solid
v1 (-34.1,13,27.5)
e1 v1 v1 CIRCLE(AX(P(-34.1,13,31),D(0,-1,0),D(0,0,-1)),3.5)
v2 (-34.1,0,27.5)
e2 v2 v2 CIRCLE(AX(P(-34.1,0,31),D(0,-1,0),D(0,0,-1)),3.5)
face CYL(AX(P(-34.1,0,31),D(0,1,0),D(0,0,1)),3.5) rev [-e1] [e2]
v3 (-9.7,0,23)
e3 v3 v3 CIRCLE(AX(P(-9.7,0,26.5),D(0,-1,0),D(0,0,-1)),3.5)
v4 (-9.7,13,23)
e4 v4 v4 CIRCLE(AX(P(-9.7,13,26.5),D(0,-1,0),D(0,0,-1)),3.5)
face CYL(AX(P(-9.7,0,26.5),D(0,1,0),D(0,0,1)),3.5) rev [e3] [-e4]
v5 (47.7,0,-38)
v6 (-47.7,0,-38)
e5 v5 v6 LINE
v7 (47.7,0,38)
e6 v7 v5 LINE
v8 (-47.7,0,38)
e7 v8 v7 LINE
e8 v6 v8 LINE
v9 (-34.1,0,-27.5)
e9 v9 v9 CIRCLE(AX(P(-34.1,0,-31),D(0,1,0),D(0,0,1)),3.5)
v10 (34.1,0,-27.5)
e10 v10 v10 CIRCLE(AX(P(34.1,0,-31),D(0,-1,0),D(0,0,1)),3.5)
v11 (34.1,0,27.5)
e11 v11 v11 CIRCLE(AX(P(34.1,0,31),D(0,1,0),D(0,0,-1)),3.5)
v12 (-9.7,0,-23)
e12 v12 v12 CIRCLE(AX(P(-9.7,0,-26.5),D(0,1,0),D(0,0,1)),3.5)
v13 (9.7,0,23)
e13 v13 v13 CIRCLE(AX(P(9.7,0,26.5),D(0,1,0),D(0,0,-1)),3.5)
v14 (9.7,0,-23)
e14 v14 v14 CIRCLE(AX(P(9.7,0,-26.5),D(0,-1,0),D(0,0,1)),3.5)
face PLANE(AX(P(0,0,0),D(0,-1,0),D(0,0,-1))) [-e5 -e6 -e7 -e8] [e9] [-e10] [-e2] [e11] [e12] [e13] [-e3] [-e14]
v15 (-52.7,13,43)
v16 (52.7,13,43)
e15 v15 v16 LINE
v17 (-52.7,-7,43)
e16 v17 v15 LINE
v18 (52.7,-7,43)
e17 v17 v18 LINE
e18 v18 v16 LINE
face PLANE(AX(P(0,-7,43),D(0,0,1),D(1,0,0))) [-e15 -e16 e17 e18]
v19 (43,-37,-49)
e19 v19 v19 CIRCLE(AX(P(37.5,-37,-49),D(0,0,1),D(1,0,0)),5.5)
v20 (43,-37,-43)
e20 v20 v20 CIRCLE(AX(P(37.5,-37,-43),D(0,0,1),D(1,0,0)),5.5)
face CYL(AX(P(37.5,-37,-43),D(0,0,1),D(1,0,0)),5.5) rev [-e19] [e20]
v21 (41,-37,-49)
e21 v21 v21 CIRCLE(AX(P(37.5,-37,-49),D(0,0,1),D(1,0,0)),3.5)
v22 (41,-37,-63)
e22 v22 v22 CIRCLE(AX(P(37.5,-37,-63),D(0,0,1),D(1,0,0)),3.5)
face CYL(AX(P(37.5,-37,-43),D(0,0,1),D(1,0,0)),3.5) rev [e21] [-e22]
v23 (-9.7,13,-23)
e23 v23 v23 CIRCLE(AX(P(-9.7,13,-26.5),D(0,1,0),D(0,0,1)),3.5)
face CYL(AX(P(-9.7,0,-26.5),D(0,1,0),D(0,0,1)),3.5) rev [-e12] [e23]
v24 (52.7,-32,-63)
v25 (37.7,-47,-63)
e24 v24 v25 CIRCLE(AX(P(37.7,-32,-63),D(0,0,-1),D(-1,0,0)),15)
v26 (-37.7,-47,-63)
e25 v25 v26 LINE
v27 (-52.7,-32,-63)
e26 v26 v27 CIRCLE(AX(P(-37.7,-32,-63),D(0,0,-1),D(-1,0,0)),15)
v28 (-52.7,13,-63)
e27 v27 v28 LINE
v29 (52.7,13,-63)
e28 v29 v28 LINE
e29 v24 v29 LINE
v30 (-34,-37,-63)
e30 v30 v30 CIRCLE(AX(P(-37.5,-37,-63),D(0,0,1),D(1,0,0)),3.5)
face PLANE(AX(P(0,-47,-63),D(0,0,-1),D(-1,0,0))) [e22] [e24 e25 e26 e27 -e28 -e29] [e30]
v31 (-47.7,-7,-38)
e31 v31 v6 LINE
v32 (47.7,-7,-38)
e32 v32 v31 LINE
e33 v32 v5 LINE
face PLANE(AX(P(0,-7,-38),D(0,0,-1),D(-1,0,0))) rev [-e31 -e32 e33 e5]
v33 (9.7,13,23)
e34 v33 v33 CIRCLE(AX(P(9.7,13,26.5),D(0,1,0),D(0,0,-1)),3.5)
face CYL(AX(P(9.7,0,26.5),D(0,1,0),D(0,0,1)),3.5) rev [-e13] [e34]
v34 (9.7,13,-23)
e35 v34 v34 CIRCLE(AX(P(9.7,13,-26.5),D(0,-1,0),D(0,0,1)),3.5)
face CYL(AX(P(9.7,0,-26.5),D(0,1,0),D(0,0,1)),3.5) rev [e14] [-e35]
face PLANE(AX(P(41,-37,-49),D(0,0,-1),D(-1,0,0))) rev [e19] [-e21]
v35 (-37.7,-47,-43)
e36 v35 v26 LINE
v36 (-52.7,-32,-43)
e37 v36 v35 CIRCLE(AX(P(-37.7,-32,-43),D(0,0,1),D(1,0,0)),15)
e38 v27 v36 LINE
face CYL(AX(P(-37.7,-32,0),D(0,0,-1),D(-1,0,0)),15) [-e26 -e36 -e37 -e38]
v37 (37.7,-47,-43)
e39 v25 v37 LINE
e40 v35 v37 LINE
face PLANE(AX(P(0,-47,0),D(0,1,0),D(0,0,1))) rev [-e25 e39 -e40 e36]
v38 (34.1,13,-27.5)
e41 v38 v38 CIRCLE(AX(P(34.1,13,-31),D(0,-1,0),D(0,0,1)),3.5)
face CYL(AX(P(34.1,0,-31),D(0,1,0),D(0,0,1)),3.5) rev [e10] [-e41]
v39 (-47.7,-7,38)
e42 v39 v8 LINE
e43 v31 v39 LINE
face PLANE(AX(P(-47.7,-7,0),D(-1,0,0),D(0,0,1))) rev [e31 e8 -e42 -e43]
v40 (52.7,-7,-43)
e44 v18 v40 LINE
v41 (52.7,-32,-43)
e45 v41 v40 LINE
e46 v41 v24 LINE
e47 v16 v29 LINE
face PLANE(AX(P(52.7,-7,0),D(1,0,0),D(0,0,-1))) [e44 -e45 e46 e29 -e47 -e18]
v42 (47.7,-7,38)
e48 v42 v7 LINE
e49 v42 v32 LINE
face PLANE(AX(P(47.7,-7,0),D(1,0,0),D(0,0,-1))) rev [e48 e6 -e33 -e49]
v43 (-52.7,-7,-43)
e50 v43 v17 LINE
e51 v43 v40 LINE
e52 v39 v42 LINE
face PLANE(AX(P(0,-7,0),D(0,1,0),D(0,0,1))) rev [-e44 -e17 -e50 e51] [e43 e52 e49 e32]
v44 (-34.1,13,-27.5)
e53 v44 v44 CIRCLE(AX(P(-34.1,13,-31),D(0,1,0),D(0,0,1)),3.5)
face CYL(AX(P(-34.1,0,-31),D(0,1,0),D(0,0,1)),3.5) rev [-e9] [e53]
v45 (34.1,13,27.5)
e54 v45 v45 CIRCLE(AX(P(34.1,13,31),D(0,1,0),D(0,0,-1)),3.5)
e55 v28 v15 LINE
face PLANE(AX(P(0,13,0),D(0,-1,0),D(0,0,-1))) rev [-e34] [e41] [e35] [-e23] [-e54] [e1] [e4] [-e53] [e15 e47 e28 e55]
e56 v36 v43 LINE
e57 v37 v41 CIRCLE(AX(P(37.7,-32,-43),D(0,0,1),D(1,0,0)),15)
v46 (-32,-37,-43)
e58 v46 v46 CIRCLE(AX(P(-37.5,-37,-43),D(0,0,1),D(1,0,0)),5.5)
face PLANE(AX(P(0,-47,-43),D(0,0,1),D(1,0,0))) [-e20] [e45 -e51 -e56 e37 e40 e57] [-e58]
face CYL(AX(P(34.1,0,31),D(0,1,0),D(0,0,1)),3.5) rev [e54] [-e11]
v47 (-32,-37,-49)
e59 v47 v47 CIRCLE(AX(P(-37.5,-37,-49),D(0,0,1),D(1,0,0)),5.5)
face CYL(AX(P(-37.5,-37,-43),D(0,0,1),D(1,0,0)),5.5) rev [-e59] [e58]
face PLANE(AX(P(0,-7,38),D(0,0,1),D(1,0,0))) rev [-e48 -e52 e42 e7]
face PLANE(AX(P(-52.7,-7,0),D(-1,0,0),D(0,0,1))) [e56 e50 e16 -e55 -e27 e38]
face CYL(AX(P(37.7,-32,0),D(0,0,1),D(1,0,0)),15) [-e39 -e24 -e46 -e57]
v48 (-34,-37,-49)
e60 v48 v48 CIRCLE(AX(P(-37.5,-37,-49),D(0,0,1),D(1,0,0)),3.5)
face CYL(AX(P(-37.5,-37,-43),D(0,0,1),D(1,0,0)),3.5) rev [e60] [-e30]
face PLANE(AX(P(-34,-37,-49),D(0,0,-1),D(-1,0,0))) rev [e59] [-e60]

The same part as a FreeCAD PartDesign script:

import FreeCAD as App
import Part
import Sketcher

V = App.Vector
Q = App.Units.Quantity


def edges_at(feature, points):
    """Names of the edges that pass closest to the given points."""
    edges = feature.Shape.Edges
    near = lambda p: min(range(len(edges)), key=lambda i: edges[i].distToShape(Part.Vertex(*p))[0])
    return sorted({f"Edge{near(p) + 1}" for p in points})

doc = App.newDocument("Part")
body = doc.addObject("PartDesign::Body", "Body")

sketch1 = body.newObject("Sketcher::SketchObject", "Sketch")
sketch1.AttachmentSupport = (doc.getObject("XZ_Plane"), [""])
sketch1.MapMode = "FlatFace"
sketch1.addGeometry(Part.LineSegment(V(-48, -38, 0), V(-48, 38, 0)), False)
sketch1.addGeometry(Part.LineSegment(V(-48, 38, 0), V(48, 38, 0)), False)
sketch1.addGeometry(Part.LineSegment(V(48, 38, 0), V(48, -38, 0)), False)
sketch1.addGeometry(Part.LineSegment(V(48, -38, 0), V(-48, -38, 0)), False)
sketch1.addConstraint(Sketcher.Constraint("Coincident", 0, 2, 1, 1))
sketch1.addConstraint(Sketcher.Constraint("Coincident", 1, 2, 2, 1))
sketch1.addConstraint(Sketcher.Constraint("Coincident", 2, 2, 3, 1))
sketch1.addConstraint(Sketcher.Constraint("Coincident", 3, 2, 0, 1))
sketch1.addConstraint(Sketcher.Constraint("Vertical", 0))
sketch1.addConstraint(Sketcher.Constraint("Horizontal", 1))
sketch1.addConstraint(Sketcher.Constraint("Vertical", 2))
sketch1.addConstraint(Sketcher.Constraint("Horizontal", 3))
sketch1.addConstraint(Sketcher.Constraint("Symmetric", 0, 2, 2, 2, -1, 1))
sketch1.addConstraint(Sketcher.Constraint("DistanceY", 0, 1, 0, 2, Q("76 mm")))
sketch1.addConstraint(Sketcher.Constraint("DistanceX", 1, 1, 1, 2, Q("95.4 mm")))
pad1 = body.newObject("PartDesign::Pad", "Pad")
pad1.Profile = sketch1
pad1.Length = 13
pad1.Reversed = True

sketch2 = body.newObject("Sketcher::SketchObject", "Sketch001")
sketch2.AttachmentSupport = (doc.getObject("XZ_Plane"), [""])
sketch2.MapMode = "FlatFace"
sketch2.AttachmentOffset = App.Placement(V(0, 0, -13), App.Rotation())
sketch2.addGeometry(Part.Circle(V(-34.1, -31, 0), V(0, 0, 1), 3.5), False)
sketch2.addGeometry(Part.Circle(V(-9.7, -26.5, 0), V(0, 0, 1), 3.5), False)
sketch2.addConstraint(Sketcher.Constraint("Equal", 0, 1))
sketch2.addConstraint(Sketcher.Constraint("Diameter", 0, Q("7 mm")))
sketch2.addConstraint(Sketcher.Constraint("DistanceY", 0, 3, -1, 1, Q("31 mm")))
sketch2.addConstraint(Sketcher.Constraint("DistanceX", 0, 3, -1, 1, Q("34.1 mm")))
sketch2.addConstraint(Sketcher.Constraint("DistanceX", 1, 3, -1, 1, Q("9.7 mm")))
sketch2.addConstraint(Sketcher.Constraint("DistanceY", 1, 3, -1, 1, Q("26.5 mm")))
pocket1 = body.newObject("PartDesign::Pocket", "Pocket")
pocket1.Profile = sketch2
pocket1.Type = "ThroughAll"
pocket1.Reversed = True
doc.recompute()

mirrored = body.newObject("PartDesign::Mirrored", "Mirrored")
mirrored.Originals = [pocket1]
mirrored.MirrorPlane = (doc.getObject("YZ_Plane"), [""])
body.Tip = mirrored
doc.recompute()

mirrored2 = body.newObject("PartDesign::Mirrored", "Mirrored001")
mirrored2.Originals = [pocket1]
mirrored2.MirrorPlane = (doc.getObject("XY_Plane"), [""])
body.Tip = mirrored2

sketch3 = body.newObject("Sketcher::SketchObject", "Sketch002")
sketch3.AttachmentSupport = (doc.getObject("XZ_Plane"), [""])
sketch3.MapMode = "FlatFace"
sketch3.AttachmentOffset = App.Placement(V(0, 0, -13), App.Rotation())
sketch3.addGeometry(Part.Circle(V(34.1, 31, 0), V(0, 0, 1), 3.5), False)
sketch3.addGeometry(Part.Circle(V(9.7, 26.5, 0), V(0, 0, 1), 3.5), False)
sketch3.addConstraint(Sketcher.Constraint("Equal", 0, 1))
sketch3.addConstraint(Sketcher.Constraint("Diameter", 0, Q("7 mm")))
sketch3.addConstraint(Sketcher.Constraint("DistanceY", -1, 1, 0, 3, Q("31 mm")))
sketch3.addConstraint(Sketcher.Constraint("DistanceX", -1, 1, 0, 3, Q("34.1 mm")))
sketch3.addConstraint(Sketcher.Constraint("DistanceX", -1, 1, 1, 3, Q("9.7 mm")))
sketch3.addConstraint(Sketcher.Constraint("DistanceY", -1, 1, 1, 3, Q("26.5 mm")))
pocket2 = body.newObject("PartDesign::Pocket", "Pocket001")
pocket2.Profile = sketch3
pocket2.Type = "ThroughAll"
pocket2.Reversed = True

sketch4 = body.newObject("Sketcher::SketchObject", "Sketch003")
sketch4.AttachmentSupport = (doc.getObject("XZ_Plane"), [""])
sketch4.MapMode = "FlatFace"
sketch4.AttachmentOffset = App.Placement(V(0, 0, -13), App.Rotation())
sketch4.addGeometry(Part.LineSegment(V(-53, -43, 0), V(-53, 43, 0)), False)
sketch4.addGeometry(Part.LineSegment(V(-53, 43, 0), V(53, 43, 0)), False)
sketch4.addGeometry(Part.LineSegment(V(53, 43, 0), V(53, -43, 0)), False)
sketch4.addGeometry(Part.LineSegment(V(53, -43, 0), V(-53, -43, 0)), False)
sketch4.addGeometry(Part.LineSegment(V(48, 38, 0), V(-48, 38, 0)), False)
sketch4.addGeometry(Part.LineSegment(V(-48, 38, 0), V(-48, -38, 0)), False)
sketch4.addGeometry(Part.LineSegment(V(-48, -38, 0), V(48, -38, 0)), False)
sketch4.addGeometry(Part.LineSegment(V(48, -38, 0), V(48, 38, 0)), False)
sketch4.addConstraint(Sketcher.Constraint("Coincident", 0, 2, 1, 1))
sketch4.addConstraint(Sketcher.Constraint("Coincident", 1, 2, 2, 1))
sketch4.addConstraint(Sketcher.Constraint("Coincident", 2, 2, 3, 1))
sketch4.addConstraint(Sketcher.Constraint("Coincident", 3, 2, 0, 1))
sketch4.addConstraint(Sketcher.Constraint("Coincident", 4, 2, 5, 1))
sketch4.addConstraint(Sketcher.Constraint("Coincident", 5, 2, 6, 1))
sketch4.addConstraint(Sketcher.Constraint("Coincident", 6, 2, 7, 1))
sketch4.addConstraint(Sketcher.Constraint("Coincident", 7, 2, 4, 1))
sketch4.addConstraint(Sketcher.Constraint("Vertical", 0))
sketch4.addConstraint(Sketcher.Constraint("Horizontal", 1))
sketch4.addConstraint(Sketcher.Constraint("Vertical", 2))
sketch4.addConstraint(Sketcher.Constraint("Horizontal", 3))
sketch4.addConstraint(Sketcher.Constraint("Horizontal", 4))
sketch4.addConstraint(Sketcher.Constraint("Vertical", 5))
sketch4.addConstraint(Sketcher.Constraint("Horizontal", 6))
sketch4.addConstraint(Sketcher.Constraint("Vertical", 7))
sketch4.addConstraint(Sketcher.Constraint("Symmetric", 0, 2, 2, 2, -1, 1))
sketch4.addConstraint(Sketcher.Constraint("Symmetric", 4, 2, 6, 2, -1, 1))
sketch4.addConstraint(Sketcher.Constraint("DistanceY", 0, 1, 0, 2, Q("86 mm")))
sketch4.addConstraint(Sketcher.Constraint("DistanceY", 5, 2, 5, 1, Q("76 mm")))
sketch4.addConstraint(Sketcher.Constraint("DistanceX", 1, 1, 1, 2, Q("105.4 mm")))
sketch4.addConstraint(Sketcher.Constraint("DistanceX", 4, 2, 4, 1, Q("95.4 mm")))
pad2 = body.newObject("PartDesign::Pad", "Pad001")
pad2.Profile = sketch4
pad2.Length = 20

sketch5 = body.newObject("Sketcher::SketchObject", "Sketch004")
sketch5.AttachmentSupport = (doc.getObject("XZ_Plane"), [""])
sketch5.MapMode = "FlatFace"
sketch5.AttachmentOffset = App.Placement(V(0, 0, -13), App.Rotation())
sketch5.addGeometry(Part.LineSegment(V(-53, -63, 0), V(-53, -43, 0)), False)
sketch5.addGeometry(Part.LineSegment(V(-53, -43, 0), V(53, -43, 0)), False)
sketch5.addGeometry(Part.LineSegment(V(53, -43, 0), V(53, -63, 0)), False)
sketch5.addGeometry(Part.LineSegment(V(53, -63, 0), V(-53, -63, 0)), False)
sketch5.addConstraint(Sketcher.Constraint("Coincident", 0, 2, 1, 1))
sketch5.addConstraint(Sketcher.Constraint("Coincident", 1, 2, 2, 1))
sketch5.addConstraint(Sketcher.Constraint("Coincident", 2, 2, 3, 1))
sketch5.addConstraint(Sketcher.Constraint("Coincident", 3, 2, 0, 1))
sketch5.addConstraint(Sketcher.Constraint("Vertical", 0))
sketch5.addConstraint(Sketcher.Constraint("Horizontal", 1))
sketch5.addConstraint(Sketcher.Constraint("Vertical", 2))
sketch5.addConstraint(Sketcher.Constraint("Horizontal", 3))
sketch5.addConstraint(Sketcher.Constraint("DistanceY", 0, 1, 0, 2, Q("20 mm")))
sketch5.addConstraint(Sketcher.Constraint("DistanceX", 1, 1, 1, 2, Q("105.4 mm")))
sketch5.addConstraint(Sketcher.Constraint("DistanceY", 0, 2, -1, 1, Q("43 mm")))
sketch5.addConstraint(Sketcher.Constraint("DistanceX", 0, 2, -1, 1, Q("52.7 mm")))
pad3 = body.newObject("PartDesign::Pad", "Pad002")
pad3.Profile = sketch5
pad3.Length = 60

sketch6 = body.newObject("Sketcher::SketchObject", "Sketch005")
sketch6.AttachmentSupport = (doc.getObject("XY_Plane"), [""])
sketch6.MapMode = "FlatFace"
sketch6.AttachmentOffset = App.Placement(V(0, 0, -43), App.Rotation())
sketch6.addGeometry(Part.Circle(V(37.5, -37, 0), V(0, 0, 1), 3.5), False)
sketch6.addGeometry(Part.Circle(V(-37.5, -37, 0), V(0, 0, 1), 3.5), False)
sketch6.addConstraint(Sketcher.Constraint("Equal", 0, 1))
sketch6.addConstraint(Sketcher.Constraint("Symmetric", 0, 3, 1, 3, -2))
sketch6.addConstraint(Sketcher.Constraint("Diameter", 0, Q("7 mm")))
sketch6.addConstraint(Sketcher.Constraint("DistanceY", 0, 3, -1, 1, Q("37 mm")))
sketch6.addConstraint(Sketcher.Constraint("DistanceX", 1, 3, 0, 3, Q("75 mm")))
doc.recompute()
hole = body.newObject("PartDesign::Hole", "Hole")
hole.Profile = sketch6
hole.ThreadType = "None"
hole.Diameter = 7
hole.DepthType = "ThroughAll"
hole.HoleCutType = "Counterbore"
hole.HoleCutDiameter = 11
hole.HoleCutDepth = 6
doc.recompute()

fillet = body.newObject("PartDesign::Fillet", "Fillet")
fillet.Base = (hole, edges_at(hole, [(-52.7, -47, -53), (52.7, -47, -53)]))
fillet.Radius = 15

doc.recompute()
